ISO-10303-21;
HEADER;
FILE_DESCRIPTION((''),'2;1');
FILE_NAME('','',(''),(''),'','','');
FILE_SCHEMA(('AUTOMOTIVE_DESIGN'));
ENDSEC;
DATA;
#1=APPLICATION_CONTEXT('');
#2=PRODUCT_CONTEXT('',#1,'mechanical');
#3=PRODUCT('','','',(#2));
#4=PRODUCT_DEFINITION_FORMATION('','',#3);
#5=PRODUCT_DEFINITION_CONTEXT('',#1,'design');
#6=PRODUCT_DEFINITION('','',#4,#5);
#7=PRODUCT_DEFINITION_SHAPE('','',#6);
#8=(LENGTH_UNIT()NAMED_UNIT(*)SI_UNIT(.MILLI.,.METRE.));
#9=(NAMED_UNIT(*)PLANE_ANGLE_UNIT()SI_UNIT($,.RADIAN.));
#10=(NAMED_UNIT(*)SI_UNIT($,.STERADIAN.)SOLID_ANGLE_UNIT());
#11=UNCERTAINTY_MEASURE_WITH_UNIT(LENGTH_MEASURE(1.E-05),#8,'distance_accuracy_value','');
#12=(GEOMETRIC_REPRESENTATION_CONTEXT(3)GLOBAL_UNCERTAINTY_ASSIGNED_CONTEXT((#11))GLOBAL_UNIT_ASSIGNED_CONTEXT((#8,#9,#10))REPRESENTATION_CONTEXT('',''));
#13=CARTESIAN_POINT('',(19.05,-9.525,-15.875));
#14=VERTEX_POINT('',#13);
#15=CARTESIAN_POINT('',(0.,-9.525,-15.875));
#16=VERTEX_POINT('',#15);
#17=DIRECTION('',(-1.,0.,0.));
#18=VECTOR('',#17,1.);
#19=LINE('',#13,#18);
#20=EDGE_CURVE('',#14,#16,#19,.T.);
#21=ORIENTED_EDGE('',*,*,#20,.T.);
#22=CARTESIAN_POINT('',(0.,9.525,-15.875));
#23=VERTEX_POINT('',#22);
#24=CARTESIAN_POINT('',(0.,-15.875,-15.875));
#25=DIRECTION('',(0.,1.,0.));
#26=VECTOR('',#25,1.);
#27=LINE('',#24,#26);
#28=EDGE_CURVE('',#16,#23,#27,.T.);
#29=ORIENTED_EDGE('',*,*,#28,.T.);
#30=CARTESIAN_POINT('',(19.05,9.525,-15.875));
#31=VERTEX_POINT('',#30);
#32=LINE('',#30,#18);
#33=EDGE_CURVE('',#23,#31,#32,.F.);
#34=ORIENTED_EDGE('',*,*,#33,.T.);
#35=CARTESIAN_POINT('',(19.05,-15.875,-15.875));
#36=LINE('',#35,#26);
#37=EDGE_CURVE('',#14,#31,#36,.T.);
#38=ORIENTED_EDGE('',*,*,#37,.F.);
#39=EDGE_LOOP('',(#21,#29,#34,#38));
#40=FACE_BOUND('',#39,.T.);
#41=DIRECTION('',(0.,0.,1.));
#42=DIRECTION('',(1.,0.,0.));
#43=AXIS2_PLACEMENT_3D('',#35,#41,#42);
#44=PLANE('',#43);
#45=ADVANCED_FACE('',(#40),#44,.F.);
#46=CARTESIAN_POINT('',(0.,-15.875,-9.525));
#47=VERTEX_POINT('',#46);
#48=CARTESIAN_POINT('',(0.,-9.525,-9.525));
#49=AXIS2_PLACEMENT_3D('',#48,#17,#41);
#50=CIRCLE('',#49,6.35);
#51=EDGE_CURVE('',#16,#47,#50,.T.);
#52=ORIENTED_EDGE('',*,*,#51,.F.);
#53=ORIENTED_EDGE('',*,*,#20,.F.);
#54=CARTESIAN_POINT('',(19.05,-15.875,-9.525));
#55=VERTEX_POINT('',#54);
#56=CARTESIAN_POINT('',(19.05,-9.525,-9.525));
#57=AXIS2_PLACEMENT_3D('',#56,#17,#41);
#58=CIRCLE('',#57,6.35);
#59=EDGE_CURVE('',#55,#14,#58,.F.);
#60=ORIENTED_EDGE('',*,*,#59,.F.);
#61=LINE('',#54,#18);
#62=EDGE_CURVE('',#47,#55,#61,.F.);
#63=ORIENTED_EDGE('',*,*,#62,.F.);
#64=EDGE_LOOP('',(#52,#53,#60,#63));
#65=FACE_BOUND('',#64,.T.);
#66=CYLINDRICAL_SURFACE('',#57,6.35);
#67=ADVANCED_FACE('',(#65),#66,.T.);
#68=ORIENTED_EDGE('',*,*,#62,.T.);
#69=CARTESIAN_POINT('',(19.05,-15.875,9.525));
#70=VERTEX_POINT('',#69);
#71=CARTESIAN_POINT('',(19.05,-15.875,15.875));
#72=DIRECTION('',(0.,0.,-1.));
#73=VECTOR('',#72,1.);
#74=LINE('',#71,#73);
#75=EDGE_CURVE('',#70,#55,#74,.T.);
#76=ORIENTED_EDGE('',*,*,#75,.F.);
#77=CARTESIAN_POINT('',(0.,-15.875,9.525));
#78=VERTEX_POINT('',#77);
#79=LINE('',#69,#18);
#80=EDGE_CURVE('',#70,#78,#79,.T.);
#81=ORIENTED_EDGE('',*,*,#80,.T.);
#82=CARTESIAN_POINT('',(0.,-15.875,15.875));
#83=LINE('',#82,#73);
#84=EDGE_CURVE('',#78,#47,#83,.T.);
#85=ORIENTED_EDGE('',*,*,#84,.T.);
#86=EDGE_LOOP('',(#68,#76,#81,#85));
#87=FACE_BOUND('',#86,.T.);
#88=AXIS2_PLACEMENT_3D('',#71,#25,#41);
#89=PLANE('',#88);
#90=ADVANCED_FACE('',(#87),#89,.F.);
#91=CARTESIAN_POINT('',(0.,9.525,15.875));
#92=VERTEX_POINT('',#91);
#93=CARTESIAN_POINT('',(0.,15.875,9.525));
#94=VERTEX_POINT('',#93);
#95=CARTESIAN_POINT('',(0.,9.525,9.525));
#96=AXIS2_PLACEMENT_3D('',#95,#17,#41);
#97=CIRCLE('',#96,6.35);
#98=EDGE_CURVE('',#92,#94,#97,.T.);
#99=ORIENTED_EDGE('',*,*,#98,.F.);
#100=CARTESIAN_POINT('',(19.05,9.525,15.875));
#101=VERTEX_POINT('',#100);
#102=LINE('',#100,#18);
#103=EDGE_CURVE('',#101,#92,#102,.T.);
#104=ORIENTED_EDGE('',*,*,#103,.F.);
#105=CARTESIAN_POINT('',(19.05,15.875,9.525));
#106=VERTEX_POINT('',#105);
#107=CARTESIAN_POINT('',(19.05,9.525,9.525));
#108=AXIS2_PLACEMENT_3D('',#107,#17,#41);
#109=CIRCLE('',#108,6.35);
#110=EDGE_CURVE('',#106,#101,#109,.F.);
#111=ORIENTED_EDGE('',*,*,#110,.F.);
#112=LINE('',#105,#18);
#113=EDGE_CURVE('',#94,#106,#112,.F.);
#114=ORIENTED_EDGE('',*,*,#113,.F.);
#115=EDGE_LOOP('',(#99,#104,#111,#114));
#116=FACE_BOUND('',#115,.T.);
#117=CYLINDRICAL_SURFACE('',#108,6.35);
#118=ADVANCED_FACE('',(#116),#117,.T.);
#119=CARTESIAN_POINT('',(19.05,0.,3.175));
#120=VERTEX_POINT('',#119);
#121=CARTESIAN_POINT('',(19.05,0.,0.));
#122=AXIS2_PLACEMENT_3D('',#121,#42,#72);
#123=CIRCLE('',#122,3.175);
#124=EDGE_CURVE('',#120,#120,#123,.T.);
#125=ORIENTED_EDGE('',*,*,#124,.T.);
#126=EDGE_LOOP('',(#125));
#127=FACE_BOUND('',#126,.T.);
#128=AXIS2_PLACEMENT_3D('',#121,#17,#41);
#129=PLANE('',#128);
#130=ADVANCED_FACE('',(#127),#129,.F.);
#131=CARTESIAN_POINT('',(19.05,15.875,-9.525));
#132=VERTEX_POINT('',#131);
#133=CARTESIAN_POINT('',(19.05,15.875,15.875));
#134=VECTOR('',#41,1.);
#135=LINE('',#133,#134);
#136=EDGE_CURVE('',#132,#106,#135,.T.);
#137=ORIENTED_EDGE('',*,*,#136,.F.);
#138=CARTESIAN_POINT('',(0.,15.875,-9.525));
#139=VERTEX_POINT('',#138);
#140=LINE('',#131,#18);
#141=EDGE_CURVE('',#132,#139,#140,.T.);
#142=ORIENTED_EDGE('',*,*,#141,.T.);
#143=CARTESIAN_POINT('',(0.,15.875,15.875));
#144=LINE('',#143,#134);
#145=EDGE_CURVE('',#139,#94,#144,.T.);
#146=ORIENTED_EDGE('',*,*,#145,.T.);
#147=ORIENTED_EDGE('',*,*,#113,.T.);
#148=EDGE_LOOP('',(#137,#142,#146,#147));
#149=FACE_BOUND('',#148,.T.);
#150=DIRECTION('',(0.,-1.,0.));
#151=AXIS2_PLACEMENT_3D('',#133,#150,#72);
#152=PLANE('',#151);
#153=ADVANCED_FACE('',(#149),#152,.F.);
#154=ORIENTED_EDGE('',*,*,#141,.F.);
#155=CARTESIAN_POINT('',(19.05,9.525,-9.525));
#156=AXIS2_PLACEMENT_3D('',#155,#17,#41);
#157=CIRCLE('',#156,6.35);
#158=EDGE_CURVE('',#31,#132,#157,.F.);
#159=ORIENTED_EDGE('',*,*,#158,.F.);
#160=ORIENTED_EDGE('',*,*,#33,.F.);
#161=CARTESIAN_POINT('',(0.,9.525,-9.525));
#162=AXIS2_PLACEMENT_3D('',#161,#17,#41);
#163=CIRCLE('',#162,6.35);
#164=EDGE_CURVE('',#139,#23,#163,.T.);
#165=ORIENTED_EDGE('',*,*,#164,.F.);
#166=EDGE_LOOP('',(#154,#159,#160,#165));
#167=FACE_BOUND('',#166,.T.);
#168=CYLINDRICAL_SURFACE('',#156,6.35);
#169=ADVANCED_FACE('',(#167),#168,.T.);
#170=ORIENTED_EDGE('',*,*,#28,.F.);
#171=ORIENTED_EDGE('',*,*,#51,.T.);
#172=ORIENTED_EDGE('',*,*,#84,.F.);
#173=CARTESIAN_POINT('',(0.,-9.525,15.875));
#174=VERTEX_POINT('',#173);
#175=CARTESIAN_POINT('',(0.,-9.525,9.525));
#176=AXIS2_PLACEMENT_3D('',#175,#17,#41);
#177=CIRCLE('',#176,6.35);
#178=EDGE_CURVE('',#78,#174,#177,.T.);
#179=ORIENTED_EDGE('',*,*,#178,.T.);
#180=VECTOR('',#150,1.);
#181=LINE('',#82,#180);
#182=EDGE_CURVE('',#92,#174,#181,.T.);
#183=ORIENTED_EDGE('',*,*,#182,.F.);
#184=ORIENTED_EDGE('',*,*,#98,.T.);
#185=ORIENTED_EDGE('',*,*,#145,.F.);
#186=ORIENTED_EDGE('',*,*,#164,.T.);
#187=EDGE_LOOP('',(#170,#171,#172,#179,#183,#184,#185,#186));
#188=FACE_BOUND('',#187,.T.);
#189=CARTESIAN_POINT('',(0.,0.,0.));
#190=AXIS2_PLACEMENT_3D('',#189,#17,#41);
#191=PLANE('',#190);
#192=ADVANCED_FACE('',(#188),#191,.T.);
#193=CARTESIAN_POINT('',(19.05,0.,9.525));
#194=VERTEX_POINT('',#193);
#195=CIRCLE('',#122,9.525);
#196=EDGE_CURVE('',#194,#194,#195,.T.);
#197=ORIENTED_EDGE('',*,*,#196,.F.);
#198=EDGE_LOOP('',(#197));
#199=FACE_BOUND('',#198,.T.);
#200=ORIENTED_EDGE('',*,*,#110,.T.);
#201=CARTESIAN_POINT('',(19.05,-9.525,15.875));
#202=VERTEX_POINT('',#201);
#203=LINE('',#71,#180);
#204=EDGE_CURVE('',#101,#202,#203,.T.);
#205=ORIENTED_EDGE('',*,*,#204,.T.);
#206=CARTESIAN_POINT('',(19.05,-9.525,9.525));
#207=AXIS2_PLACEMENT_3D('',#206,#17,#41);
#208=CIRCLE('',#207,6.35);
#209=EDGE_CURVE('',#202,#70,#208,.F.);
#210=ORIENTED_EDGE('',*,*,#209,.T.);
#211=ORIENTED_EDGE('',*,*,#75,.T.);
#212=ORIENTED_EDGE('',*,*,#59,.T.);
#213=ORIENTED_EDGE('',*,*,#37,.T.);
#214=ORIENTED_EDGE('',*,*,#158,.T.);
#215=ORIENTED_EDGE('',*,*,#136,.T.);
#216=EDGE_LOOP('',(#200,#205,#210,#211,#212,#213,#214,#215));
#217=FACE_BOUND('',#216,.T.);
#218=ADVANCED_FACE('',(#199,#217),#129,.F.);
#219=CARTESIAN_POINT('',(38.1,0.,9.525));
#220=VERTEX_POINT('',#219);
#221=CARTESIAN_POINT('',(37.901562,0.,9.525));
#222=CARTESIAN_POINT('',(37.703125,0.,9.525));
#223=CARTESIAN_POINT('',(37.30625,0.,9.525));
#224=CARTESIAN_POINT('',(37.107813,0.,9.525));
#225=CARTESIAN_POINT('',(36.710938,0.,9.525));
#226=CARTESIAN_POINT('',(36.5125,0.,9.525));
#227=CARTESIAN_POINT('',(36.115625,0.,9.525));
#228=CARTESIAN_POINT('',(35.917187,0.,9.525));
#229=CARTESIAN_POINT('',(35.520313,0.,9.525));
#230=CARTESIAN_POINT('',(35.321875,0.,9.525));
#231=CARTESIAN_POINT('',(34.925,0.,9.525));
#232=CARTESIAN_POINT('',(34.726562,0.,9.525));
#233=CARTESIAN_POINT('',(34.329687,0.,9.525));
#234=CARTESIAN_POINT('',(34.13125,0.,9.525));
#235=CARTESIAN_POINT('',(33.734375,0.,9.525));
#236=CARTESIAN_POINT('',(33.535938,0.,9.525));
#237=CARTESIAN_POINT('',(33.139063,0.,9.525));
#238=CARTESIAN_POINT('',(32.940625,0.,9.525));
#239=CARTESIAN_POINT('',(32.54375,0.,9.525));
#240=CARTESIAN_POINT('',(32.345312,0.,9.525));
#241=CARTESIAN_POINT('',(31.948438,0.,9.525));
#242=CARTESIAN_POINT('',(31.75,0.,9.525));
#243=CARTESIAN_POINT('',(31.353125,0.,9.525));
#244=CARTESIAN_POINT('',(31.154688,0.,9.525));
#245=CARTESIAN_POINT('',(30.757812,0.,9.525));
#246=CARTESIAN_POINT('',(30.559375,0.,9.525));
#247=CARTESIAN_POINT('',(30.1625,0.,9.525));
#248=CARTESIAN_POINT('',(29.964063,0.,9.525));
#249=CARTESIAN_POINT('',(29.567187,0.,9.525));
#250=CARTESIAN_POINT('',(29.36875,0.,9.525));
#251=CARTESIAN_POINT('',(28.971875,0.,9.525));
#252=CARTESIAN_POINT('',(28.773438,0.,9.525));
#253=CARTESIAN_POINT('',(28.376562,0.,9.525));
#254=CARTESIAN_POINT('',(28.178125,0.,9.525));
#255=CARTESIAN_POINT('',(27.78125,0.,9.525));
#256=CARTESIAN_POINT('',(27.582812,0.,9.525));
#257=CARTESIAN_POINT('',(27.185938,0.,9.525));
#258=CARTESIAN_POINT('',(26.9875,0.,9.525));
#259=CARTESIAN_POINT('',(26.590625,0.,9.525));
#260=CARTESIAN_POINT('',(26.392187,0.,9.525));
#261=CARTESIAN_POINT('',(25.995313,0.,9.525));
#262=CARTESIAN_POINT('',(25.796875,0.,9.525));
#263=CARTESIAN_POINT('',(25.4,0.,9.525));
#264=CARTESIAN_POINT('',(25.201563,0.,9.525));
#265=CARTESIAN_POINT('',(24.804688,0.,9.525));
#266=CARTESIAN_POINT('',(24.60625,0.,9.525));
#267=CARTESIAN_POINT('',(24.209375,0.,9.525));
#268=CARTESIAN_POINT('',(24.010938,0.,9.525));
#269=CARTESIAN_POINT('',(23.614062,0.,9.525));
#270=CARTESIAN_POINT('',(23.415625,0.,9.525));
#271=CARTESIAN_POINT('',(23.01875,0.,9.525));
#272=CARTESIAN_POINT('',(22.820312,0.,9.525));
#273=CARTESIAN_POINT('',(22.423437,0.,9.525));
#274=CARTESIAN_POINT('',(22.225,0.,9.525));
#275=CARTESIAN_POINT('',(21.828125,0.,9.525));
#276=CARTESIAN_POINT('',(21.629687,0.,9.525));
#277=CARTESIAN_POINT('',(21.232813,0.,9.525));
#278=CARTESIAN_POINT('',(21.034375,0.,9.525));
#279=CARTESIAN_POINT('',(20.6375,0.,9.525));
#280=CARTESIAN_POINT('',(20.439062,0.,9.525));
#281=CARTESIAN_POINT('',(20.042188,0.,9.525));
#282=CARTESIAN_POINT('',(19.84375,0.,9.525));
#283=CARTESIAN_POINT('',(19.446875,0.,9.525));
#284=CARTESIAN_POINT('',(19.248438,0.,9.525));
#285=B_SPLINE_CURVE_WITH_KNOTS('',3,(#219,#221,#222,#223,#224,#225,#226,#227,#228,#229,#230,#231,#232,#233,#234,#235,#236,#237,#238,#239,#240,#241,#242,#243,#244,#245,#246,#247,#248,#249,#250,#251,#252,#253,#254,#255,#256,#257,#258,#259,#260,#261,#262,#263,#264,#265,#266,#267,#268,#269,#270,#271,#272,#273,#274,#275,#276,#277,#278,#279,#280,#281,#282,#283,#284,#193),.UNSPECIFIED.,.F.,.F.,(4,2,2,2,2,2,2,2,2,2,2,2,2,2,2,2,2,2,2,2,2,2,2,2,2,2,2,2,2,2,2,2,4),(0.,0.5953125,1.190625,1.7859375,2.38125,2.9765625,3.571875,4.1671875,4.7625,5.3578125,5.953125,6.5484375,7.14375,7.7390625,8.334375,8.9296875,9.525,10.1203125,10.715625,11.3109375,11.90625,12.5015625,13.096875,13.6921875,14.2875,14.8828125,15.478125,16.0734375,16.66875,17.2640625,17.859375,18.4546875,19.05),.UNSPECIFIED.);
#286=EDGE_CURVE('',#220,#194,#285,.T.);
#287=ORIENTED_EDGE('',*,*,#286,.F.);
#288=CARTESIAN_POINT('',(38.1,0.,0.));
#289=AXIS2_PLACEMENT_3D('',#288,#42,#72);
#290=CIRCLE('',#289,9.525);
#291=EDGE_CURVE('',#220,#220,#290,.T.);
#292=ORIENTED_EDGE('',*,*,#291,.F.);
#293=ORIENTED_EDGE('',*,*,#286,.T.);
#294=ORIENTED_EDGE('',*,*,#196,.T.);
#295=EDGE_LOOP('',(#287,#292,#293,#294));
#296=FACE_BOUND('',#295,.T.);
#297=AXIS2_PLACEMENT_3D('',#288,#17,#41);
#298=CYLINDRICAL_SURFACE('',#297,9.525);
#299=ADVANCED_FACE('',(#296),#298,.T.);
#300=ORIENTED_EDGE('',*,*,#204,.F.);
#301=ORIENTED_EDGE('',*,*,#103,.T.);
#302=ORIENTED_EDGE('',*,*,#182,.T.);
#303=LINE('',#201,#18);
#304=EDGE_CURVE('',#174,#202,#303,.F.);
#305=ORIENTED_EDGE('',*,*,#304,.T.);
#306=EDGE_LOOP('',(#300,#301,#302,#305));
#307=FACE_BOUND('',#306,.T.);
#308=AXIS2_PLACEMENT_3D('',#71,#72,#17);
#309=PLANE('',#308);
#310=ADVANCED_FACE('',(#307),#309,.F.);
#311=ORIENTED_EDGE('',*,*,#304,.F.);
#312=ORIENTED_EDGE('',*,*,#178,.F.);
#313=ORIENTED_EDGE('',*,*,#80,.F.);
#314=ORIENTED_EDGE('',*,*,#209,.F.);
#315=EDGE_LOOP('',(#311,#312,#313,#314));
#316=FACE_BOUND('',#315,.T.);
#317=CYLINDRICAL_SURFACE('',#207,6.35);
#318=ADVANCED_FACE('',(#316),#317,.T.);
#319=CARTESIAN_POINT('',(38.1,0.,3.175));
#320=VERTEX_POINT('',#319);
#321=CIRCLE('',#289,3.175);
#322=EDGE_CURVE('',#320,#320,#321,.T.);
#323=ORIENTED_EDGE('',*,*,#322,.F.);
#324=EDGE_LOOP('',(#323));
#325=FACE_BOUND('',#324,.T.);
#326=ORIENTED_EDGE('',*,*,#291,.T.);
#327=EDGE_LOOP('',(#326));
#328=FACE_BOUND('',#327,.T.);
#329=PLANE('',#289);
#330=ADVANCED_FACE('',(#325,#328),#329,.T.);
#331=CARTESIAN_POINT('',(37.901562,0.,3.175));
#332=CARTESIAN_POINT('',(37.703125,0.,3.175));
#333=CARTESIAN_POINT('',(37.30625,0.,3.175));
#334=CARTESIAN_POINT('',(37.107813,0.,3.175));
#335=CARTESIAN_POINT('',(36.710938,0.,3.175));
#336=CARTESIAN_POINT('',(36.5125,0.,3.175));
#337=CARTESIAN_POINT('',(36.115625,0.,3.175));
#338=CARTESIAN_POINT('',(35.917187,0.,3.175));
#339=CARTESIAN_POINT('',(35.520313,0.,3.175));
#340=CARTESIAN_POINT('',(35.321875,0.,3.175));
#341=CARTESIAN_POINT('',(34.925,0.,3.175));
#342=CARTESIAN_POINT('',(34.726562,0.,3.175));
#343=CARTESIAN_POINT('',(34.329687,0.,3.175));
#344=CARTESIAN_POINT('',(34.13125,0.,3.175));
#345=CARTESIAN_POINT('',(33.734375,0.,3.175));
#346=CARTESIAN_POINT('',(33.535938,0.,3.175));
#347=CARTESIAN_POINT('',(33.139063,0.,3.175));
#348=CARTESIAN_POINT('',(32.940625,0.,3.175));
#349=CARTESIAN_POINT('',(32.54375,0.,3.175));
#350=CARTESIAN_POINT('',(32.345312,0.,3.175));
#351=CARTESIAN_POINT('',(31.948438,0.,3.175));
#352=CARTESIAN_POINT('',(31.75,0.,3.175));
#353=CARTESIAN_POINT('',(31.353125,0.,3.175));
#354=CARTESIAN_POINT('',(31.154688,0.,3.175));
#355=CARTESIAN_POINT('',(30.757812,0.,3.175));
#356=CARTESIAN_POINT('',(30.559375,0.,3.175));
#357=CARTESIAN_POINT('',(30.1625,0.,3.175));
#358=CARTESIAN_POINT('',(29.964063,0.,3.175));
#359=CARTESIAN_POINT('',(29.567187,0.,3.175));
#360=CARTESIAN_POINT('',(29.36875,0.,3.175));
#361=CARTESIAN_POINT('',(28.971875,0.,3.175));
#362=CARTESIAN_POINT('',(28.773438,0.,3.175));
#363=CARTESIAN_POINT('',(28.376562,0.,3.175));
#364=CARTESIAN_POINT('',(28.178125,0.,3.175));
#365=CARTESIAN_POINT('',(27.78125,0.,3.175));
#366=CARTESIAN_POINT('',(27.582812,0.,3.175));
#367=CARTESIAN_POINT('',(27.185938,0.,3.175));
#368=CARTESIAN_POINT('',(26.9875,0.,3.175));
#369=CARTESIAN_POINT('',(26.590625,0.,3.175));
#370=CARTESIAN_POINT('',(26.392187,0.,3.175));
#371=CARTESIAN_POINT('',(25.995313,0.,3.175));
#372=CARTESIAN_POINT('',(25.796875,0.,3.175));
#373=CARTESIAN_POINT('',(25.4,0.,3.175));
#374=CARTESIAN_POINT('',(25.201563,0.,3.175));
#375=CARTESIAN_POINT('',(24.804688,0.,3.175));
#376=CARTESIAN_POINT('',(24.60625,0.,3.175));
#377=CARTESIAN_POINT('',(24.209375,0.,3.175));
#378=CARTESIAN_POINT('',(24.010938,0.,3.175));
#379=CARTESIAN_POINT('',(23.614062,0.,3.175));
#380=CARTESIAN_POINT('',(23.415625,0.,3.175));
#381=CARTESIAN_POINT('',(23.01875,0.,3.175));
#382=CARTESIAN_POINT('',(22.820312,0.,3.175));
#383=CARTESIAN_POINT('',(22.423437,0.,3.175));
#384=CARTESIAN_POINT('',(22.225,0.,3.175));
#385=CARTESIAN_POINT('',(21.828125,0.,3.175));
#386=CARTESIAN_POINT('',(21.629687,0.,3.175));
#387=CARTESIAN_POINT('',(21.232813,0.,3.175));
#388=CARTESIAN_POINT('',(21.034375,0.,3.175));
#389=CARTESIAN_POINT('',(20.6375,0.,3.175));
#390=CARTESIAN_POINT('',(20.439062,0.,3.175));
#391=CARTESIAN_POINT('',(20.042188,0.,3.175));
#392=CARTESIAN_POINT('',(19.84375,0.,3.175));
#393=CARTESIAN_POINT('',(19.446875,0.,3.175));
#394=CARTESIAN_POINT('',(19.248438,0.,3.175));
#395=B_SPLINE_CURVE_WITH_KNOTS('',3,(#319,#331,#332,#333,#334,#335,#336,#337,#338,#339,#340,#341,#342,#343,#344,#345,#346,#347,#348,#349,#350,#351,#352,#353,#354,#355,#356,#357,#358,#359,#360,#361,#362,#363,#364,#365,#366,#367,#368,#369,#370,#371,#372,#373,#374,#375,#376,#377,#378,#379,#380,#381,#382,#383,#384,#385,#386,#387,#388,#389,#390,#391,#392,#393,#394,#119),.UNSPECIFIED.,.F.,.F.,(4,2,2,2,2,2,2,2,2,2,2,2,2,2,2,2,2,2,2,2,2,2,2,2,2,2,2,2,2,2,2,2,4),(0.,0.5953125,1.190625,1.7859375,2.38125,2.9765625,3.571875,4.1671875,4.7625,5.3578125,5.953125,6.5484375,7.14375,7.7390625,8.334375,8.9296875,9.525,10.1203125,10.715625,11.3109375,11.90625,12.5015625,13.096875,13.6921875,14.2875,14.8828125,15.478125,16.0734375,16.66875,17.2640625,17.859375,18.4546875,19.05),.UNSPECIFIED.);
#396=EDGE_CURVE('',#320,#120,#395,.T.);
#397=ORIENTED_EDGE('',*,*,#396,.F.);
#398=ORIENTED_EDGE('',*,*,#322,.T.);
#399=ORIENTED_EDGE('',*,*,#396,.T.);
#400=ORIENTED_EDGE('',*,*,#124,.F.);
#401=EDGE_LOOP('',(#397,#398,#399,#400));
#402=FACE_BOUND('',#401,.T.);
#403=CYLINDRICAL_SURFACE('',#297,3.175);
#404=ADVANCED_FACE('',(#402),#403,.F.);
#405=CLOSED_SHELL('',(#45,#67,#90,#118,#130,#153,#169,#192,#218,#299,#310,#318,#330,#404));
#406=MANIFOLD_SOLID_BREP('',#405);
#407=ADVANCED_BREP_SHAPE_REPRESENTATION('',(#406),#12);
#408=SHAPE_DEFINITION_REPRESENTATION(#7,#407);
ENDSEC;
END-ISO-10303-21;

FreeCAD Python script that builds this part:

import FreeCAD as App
import Part
import Sketcher
from FreeCAD import Vector
Q = App.Units.Quantity


def edges_at(feature, points):
    """Names of the edges that pass closest to the given points."""
    edges = feature.Shape.Edges
    near = lambda p: min(range(len(edges)), key=lambda i: edges[i].distToShape(Part.Vertex(*p))[0])
    return sorted({f"Edge{near(p) + 1}" for p in points})

doc = App.newDocument("Part")
params = doc.addObject("Spreadsheet::Sheet", "Params")
for row, (alias, value) in enumerate([
    ("sketch1_width", "1.25 in"),
    ("pad1_length", "0.75 in"),
    ("sketch2_diameter", "0.75 in"),
    ("sketch2_diameter2", "0.25 in"),
    ("pad2_length", "0.75 in"),
    ("fillet_radius", "0.25 in"),
], start=1):
    params.set(f"A{row}", alias)
    params.set(f"B{row}", "=" + value)
    params.setAlias(f"B{row}", alias)

body = doc.addObject("PartDesign::Body", "Body")

sketch1 = body.newObject("Sketcher::SketchObject", "Sketch")
sketch1.AttachmentSupport = (doc.getObject("YZ_Plane"), [""])
sketch1.MapMode = "FlatFace"
sketch1.addGeometry([
    Part.LineSegment(Vector(16, 16, 0), Vector(-16, 16, 0)),
    Part.LineSegment(Vector(-16, 16, 0), Vector(-16, -16, 0)),
    Part.LineSegment(Vector(-16, -16, 0), Vector(16, -16, 0)),
    Part.LineSegment(Vector(16, -16, 0), Vector(16, 16, 0)),
], False)
sketch1.addConstraint([
    Sketcher.Constraint("Coincident", 0, 2, 1, 1),
    Sketcher.Constraint("Coincident", 1, 2, 2, 1),
    Sketcher.Constraint("Coincident", 2, 2, 3, 1),
    Sketcher.Constraint("Coincident", 3, 2, 0, 1),
    Sketcher.Constraint("Horizontal", 0),
    Sketcher.Constraint("Vertical", 1),
    Sketcher.Constraint("Horizontal", 2),
    Sketcher.Constraint("Vertical", 3),
    Sketcher.Constraint("Symmetric", 0, 2, 2, 2, -1, 1),
    Sketcher.Constraint("Equal", 2, 1),
    Sketcher.Constraint("DistanceX", 0, 2, 0, 1, Q("1.25 in")),
])
sketch1.setExpression("Constraints[10]", "Params.sketch1_width")
pad1 = body.newObject("PartDesign::Pad", "Pad")
pad1.Profile = sketch1
pad1.setExpression("Length", "Params.pad1_length")

sketch2 = body.newObject("Sketcher::SketchObject", "Sketch001")
sketch2.AttachmentSupport = (doc.getObject("YZ_Plane"), [""])
sketch2.MapMode = "FlatFace"
sketch2.AttachmentOffset = App.Placement(Vector(0, 0, 0.75 * 25.4), App.Rotation())
sketch2.addGeometry([
    Part.Circle(Vector(0, 0, 0), Vector(0, 0, 1), 9.5),
    Part.Circle(Vector(0, 0, 0), Vector(0, 0, 1), 3.2),
], False)
sketch2.addConstraint([
    Sketcher.Constraint("Coincident", 0, 3, -1, 1),
    Sketcher.Constraint("Coincident", 1, 3, -1, 1),
    Sketcher.Constraint("Diameter", 0, Q("0.75 in")),
    Sketcher.Constraint("Diameter", 1, Q("0.25 in")),
])
sketch2.setExpression("Constraints[2]", "Params.sketch2_diameter")
sketch2.setExpression("Constraints[3]", "Params.sketch2_diameter2")
pad2 = body.newObject("PartDesign::Pad", "Pad001")
pad2.Profile = sketch2
pad2.setExpression("Length", "Params.pad2_length")
doc.recompute()

fillet = body.newObject("PartDesign::Fillet", "Fillet")
fillet.Base = (pad2, edges_at(pad2, [
    (9.525, -15.875, -15.875),
    (9.525, -15.875, 15.875),
    (9.525, 15.875, 15.875),
    (9.525, 15.875, -15.875),
]))
fillet.setExpression("Radius", "Params.fillet_radius")

doc.recompute()
